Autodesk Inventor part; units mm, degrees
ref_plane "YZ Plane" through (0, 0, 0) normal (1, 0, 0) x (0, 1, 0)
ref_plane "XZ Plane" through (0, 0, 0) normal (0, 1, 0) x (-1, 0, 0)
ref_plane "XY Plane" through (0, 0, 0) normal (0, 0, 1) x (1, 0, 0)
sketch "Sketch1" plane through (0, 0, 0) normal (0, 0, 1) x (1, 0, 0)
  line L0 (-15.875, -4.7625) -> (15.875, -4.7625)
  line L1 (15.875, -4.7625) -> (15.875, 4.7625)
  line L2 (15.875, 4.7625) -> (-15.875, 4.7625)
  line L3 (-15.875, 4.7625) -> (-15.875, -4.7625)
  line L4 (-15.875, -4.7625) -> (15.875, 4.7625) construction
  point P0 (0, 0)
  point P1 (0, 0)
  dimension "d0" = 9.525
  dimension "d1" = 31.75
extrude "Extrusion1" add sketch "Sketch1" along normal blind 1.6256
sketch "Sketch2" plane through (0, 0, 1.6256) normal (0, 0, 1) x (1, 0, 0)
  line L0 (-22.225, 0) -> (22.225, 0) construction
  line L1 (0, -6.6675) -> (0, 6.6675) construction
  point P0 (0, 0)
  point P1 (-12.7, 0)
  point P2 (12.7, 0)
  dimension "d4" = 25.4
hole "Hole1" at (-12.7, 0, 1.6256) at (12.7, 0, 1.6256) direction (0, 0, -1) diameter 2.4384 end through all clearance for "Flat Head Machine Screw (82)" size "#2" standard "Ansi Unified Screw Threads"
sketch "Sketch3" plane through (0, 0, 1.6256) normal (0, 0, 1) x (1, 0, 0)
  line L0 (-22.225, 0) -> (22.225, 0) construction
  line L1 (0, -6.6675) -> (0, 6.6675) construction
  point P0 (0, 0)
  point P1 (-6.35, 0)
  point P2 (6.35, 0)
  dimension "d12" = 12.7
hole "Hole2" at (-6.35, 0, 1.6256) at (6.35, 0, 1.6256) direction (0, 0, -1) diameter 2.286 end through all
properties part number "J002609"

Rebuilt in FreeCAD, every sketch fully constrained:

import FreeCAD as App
import Part
import Sketcher

V = App.Vector
Q = App.Units.Quantity


def add_polygon(sketch, points):
    """Adds a closed chain of lines whose ends are joined by coincident constraints."""
    first, n = sketch.GeometryCount, len(points)
    for a, b in zip(points, points[1:] + points[:1]):
        sketch.addGeometry(Part.LineSegment(App.Vector(*a, 0), App.Vector(*b, 0)), False)
    for i in range(n):
        sketch.addConstraint(Sketcher.Constraint("Coincident", first + i, 2, first + (i + 1) % n, 1))

doc = App.newDocument("Part")
body = doc.addObject("PartDesign::Body", "Body")

# Sketch on XY plane
sketch1 = body.newObject("Sketcher::SketchObject", "Sketch")
sketch1.AttachmentSupport = (doc.getObject("XY_Plane"), [""])
sketch1.MapMode = "FlatFace"
add_polygon(sketch1, [(-15.875, 4.7625), (-15.875, -4.7625), (15.875, -4.7625), (15.875, 4.7625)])  # lines 0-3
sketch1.addConstraint([
    Sketcher.Constraint("Vertical", 0),
    Sketcher.Constraint("Horizontal", 1),
    Sketcher.Constraint("Vertical", 2),
    Sketcher.Constraint("Horizontal", 3),
    Sketcher.Constraint("Symmetric", 0, 2, 2, 2, -1, 1),
    Sketcher.Constraint("DistanceX", 1, 1, 1, 2, Q("1.25 in")),
    Sketcher.Constraint("DistanceY", 0, 2, 0, 1, Q("0.375 in")),
])
pad1 = body.newObject("PartDesign::Pad", "Pad")
pad1.Profile = sketch1
pad1.Length = Q("0.064 in")

# Sketch on XY plane
sketch2 = body.newObject("Sketcher::SketchObject", "Sketch001")
sketch2.AttachmentSupport = (doc.getObject("XY_Plane"), [""])
sketch2.MapMode = "FlatFace"
sketch2.AttachmentOffset = App.Placement(V(0, 0, 0.064 * 25.4), App.Rotation())
sketch2.addGeometry([
    Part.Circle(V(-12.7, 0, 0), V(0, 0, 1), 1.2192),
    Part.Circle(V(12.7, 0, 0), V(0, 0, 1), 1.2192),
], False)
sketch2.addConstraint([
    Sketcher.Constraint("Equal", 0, 1),
    Sketcher.Constraint("Symmetric", 0, 3, 1, 3, -1, 1),
    Sketcher.Constraint("PointOnObject", 0, 3, -1),
    Sketcher.Constraint("Diameter", 0, Q("0.096 in")),
    Sketcher.Constraint("DistanceX", 0, 3, 1, 3, Q("1 in")),
])
doc.recompute()
hole = body.newObject("PartDesign::Hole", "Hole")
hole.Profile = sketch2
hole.ThreadType = "None"
hole.Diameter = Q("0.096 in")
hole.DepthType = "ThroughAll"

# Sketch on XY plane
sketch3 = body.newObject("Sketcher::SketchObject", "Sketch002")
sketch3.AttachmentSupport = (doc.getObject("XY_Plane"), [""])
sketch3.MapMode = "FlatFace"
sketch3.AttachmentOffset = App.Placement(V(0, 0, 0.064 * 25.4), App.Rotation())
sketch3.addGeometry([
    Part.Circle(V(-6.35, 0, 0), V(0, 0, 1), 1.143),
    Part.Circle(V(6.35, 0, 0), V(0, 0, 1), 1.143),
], False)
sketch3.addConstraint([
    Sketcher.Constraint("Equal", 0, 1),
    Sketcher.Constraint("Symmetric", 0, 3, 1, 3, -1, 1),
    Sketcher.Constraint("PointOnObject", 0, 3, -1),
    Sketcher.Constraint("Diameter", 0, Q("0.09 in")),
    Sketcher.Constraint("DistanceX", 0, 3, 1, 3, Q("0.5 in")),
])
doc.recompute()
hole2 = body.newObject("PartDesign::Hole", "Hole001")
hole2.Profile = sketch3
hole2.ThreadType = "None"
hole2.Diameter = Q("0.09 in")
hole2.DepthType = "ThroughAll"

doc.recompute()
